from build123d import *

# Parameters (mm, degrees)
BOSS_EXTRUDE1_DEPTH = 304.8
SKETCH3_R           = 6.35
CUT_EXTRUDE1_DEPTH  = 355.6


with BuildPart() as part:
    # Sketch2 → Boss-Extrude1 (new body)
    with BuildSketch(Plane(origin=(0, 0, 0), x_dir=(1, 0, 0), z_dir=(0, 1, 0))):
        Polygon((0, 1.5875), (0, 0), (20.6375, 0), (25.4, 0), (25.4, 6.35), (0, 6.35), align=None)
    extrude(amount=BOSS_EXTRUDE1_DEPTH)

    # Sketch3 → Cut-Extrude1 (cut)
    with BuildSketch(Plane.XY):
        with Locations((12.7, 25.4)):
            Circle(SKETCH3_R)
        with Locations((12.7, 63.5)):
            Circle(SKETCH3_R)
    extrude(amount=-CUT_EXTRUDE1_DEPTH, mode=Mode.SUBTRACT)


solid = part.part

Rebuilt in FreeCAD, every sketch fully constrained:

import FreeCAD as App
import Part
import Sketcher

V = App.Vector
Q = App.Units.Quantity

doc = App.newDocument("Part")
body = doc.addObject("PartDesign::Body", "Body")

sketch1 = body.newObject("Sketcher::SketchObject", "Sketch")
sketch1.AttachmentSupport = (doc.getObject("XZ_Plane"), [""])
sketch1.MapMode = "FlatFace"
sketch1.addGeometry([
    Part.LineSegment(V(0, 0, 0), V(25.4, 0, 0)),
    Part.LineSegment(V(25.4, 0, 0), V(25.4, -6.35, 0)),
    Part.LineSegment(V(25.4, -6.35, 0), V(0, -6.35, 0)),
    Part.LineSegment(V(0, -6.35, 0), V(0, 0, 0)),
], False)
sketch1.addConstraint([
    Sketcher.Constraint("Coincident", 0, 2, 1, 1),
    Sketcher.Constraint("Coincident", 1, 2, 2, 1),
    Sketcher.Constraint("Coincident", 2, 2, 3, 1),
    Sketcher.Constraint("Coincident", 3, 2, 0, 1),
    Sketcher.Constraint("Horizontal", 0),
    Sketcher.Constraint("Vertical", 1),
    Sketcher.Constraint("Horizontal", 2),
    Sketcher.Constraint("Vertical", 3),
    Sketcher.Constraint("Coincident", 3, 2, -1, 1),
    Sketcher.Constraint("DistanceX", 0, 1, 0, 2, Q("1 in")),
    Sketcher.Constraint("DistanceY", 1, 2, 1, 1, Q("0.25 in")),
])
pad1 = body.newObject("PartDesign::Pad", "Pad")
pad1.Profile = sketch1
pad1.Length = Q("12 in")
pad1.Reversed = True

sketch2 = body.newObject("Sketcher::SketchObject", "Sketch001")
sketch2.AttachmentSupport = (doc.getObject("XY_Plane"), [""])
sketch2.MapMode = "FlatFace"
sketch2.addGeometry([
    Part.Circle(V(12.7, 25.4, 0), V(0, 0, 1), 6.35),
    Part.Circle(V(12.7, 63.5, 0), V(0, 0, 1), 6.35),
], False)
sketch2.addConstraint([
    Sketcher.Constraint("Equal", 0, 1),
    Sketcher.Constraint("Vertical", 0, 3, 1, 3),
    Sketcher.Constraint("Diameter", 0, Q("0.5 in")),
    Sketcher.Constraint("DistanceY", -1, 1, 0, 3, Q("1 in")),
    Sketcher.Constraint("DistanceX", -1, 1, 0, 3, Q("0.5 in")),
    Sketcher.Constraint("DistanceY", -1, 1, 1, 3, Q("2.5 in")),
])
pocket1 = body.newObject("PartDesign::Pocket", "Pocket")
pocket1.Profile = sketch2
pocket1.Length = Q("14 in")

doc.recompute()
